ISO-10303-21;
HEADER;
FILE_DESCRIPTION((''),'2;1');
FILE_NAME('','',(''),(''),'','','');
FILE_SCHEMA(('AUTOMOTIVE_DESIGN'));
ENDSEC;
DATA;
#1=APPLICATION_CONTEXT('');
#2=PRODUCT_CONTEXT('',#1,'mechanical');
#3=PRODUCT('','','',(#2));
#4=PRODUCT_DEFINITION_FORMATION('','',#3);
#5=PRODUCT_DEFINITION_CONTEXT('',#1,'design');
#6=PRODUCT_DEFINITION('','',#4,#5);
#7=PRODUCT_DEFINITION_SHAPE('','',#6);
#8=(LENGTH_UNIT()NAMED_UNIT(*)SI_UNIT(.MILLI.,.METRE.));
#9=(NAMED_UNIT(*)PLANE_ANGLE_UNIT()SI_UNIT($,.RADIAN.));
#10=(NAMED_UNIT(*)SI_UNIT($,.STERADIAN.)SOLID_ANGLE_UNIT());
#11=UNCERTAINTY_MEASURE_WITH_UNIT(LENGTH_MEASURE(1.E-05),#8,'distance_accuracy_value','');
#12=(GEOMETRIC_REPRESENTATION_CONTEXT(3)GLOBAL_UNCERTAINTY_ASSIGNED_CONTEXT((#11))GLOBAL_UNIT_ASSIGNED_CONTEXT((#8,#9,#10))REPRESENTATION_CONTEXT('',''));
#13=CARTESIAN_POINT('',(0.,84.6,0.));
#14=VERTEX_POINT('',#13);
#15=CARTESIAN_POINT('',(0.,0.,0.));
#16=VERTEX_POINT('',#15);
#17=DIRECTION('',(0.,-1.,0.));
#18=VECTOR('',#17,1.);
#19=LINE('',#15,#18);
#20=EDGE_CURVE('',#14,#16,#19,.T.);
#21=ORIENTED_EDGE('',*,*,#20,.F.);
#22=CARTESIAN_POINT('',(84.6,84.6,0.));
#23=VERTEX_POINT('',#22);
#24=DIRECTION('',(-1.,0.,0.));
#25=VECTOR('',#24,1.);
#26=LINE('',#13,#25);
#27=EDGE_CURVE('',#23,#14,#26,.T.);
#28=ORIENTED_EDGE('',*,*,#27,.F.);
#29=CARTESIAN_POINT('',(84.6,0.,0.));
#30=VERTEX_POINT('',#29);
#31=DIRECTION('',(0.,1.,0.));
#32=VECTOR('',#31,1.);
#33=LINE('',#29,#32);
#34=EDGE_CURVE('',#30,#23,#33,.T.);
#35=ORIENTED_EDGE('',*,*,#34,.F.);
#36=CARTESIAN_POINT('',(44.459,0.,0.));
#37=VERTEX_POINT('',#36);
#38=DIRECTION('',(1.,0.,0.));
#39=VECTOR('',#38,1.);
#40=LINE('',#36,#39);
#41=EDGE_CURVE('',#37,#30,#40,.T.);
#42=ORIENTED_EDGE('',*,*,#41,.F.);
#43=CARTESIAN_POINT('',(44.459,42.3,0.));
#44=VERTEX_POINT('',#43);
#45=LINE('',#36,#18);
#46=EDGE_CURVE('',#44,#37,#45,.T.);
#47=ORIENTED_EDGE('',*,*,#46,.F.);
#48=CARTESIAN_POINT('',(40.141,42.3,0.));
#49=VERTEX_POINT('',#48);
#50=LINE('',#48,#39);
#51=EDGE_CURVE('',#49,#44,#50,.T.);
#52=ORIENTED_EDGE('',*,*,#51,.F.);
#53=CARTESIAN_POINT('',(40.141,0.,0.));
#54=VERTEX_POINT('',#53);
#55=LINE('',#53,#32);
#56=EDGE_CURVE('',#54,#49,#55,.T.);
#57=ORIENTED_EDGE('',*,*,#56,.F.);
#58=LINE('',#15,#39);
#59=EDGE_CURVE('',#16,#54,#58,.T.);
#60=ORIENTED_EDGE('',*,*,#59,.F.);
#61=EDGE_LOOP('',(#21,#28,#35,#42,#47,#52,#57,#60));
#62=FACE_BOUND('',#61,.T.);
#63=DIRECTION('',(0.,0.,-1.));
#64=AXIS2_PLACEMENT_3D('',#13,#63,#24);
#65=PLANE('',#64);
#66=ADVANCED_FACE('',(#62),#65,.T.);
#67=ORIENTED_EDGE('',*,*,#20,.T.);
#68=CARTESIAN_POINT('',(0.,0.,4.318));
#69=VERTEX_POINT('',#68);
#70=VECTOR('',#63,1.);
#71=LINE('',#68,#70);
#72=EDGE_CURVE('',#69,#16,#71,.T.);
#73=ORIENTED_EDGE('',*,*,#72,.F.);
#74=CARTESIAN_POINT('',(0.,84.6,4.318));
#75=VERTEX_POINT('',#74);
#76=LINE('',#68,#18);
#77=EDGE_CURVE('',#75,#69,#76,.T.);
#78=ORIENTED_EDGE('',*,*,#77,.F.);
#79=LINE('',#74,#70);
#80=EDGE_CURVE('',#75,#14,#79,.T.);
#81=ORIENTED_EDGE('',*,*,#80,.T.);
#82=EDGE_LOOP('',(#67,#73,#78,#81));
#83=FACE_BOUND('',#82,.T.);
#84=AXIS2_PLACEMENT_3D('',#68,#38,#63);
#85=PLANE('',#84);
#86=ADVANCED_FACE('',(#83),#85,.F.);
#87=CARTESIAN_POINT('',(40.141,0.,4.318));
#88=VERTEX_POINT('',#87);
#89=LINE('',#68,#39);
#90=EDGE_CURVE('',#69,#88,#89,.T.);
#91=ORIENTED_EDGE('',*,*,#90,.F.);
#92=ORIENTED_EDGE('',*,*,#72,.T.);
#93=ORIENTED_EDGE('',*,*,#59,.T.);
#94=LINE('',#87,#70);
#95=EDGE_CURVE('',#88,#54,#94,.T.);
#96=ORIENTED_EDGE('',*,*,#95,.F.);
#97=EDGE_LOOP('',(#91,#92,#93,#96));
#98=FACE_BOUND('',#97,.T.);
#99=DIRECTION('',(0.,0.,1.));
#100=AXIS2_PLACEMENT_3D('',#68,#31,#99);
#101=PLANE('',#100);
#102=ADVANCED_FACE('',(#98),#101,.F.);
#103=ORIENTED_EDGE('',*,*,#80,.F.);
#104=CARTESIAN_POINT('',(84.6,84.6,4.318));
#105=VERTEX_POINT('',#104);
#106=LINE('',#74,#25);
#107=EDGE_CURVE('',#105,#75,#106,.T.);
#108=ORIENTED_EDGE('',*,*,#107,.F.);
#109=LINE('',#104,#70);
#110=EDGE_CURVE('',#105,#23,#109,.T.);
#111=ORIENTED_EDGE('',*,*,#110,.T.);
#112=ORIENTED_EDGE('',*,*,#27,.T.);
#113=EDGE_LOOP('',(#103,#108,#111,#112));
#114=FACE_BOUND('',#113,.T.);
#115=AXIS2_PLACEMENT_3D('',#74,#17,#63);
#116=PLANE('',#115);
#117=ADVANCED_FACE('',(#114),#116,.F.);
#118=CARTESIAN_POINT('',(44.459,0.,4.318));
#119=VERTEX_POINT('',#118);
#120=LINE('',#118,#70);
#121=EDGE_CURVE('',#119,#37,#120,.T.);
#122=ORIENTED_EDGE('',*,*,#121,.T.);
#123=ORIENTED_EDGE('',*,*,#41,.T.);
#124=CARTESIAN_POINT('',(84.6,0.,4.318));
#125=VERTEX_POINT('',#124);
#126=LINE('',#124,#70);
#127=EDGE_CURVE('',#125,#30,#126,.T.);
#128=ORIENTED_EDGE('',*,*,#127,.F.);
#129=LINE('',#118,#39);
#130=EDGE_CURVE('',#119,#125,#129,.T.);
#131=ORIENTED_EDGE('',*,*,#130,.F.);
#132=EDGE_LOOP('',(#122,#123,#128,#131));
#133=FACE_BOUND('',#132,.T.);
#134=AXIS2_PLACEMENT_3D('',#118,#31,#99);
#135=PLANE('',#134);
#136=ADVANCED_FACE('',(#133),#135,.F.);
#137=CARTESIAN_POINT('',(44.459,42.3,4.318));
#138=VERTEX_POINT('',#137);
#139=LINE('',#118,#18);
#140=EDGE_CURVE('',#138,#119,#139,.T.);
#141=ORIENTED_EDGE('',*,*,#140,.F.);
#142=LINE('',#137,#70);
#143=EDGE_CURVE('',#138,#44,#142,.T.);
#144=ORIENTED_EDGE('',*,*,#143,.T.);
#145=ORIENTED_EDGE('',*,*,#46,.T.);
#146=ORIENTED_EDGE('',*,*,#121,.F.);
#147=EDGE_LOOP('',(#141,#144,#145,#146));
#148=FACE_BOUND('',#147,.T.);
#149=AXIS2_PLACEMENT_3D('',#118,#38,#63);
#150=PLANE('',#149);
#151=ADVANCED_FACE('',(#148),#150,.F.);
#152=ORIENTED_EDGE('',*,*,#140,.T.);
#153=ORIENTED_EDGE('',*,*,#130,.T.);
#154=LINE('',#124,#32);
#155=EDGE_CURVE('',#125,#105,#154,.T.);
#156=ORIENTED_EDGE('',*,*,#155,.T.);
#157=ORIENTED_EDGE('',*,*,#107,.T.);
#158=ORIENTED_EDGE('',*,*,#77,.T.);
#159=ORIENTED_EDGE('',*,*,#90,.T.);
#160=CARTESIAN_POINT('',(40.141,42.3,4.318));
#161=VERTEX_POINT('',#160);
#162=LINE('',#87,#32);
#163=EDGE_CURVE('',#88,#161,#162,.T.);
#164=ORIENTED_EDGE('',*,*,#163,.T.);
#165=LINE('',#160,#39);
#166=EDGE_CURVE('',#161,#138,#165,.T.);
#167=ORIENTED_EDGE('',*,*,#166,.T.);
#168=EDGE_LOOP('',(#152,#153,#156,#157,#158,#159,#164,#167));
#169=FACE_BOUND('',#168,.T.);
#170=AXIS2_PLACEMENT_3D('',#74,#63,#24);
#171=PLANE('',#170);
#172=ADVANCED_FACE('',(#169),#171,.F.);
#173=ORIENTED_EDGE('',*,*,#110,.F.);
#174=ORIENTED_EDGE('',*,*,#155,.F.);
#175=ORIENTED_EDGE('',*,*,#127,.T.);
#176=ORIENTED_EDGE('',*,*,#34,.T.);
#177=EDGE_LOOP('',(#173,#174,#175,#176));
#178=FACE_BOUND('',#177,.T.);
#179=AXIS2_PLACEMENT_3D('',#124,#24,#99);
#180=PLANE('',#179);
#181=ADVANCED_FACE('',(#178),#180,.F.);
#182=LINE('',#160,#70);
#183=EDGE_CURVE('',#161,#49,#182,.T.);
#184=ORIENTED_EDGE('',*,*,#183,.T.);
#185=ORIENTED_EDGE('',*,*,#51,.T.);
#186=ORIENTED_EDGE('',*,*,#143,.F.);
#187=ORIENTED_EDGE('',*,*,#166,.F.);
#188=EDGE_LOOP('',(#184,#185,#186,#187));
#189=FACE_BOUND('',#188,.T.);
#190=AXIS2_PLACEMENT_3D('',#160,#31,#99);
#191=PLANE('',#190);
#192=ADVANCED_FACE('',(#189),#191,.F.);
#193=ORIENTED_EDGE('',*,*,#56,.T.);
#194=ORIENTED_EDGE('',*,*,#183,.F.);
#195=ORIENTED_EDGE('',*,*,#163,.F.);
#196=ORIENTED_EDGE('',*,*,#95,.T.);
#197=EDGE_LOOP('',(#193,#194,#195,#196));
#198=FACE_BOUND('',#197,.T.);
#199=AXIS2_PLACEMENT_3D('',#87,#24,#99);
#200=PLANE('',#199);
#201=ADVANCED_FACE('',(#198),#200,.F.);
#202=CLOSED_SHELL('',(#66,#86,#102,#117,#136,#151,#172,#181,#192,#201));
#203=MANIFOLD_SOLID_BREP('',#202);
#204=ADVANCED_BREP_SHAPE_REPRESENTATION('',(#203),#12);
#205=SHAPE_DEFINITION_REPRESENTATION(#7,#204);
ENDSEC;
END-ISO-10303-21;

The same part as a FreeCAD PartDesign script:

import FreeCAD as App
import Part
import Sketcher


def add_polygon(sketch, points):
    """Adds a closed chain of lines whose ends are joined by coincident constraints."""
    first, n = sketch.GeometryCount, len(points)
    for a, b in zip(points, points[1:] + points[:1]):
        sketch.addGeometry(Part.LineSegment(App.Vector(*a, 0), App.Vector(*b, 0)), False)
    for i in range(n):
        sketch.addConstraint(Sketcher.Constraint("Coincident", first + i, 2, first + (i + 1) % n, 1))

doc = App.newDocument("Part")
body = doc.addObject("PartDesign::Body", "Body")

# Sketch on XY plane
sketch1 = body.newObject("Sketcher::SketchObject", "Sketch")
sketch1.AttachmentSupport = (doc.getObject("XY_Plane"), [""])
sketch1.MapMode = "FlatFace"
add_polygon(sketch1, [(0, 0), (40.1, 0), (40.1, 42.3), (44.5, 42.3), (44.5, 0), (84.6, 0), (84.6, 84.6), (0, 84.6)])  # lines 0-7
sketch1.addConstraint(Sketcher.Constraint("Horizontal", 0))
sketch1.addConstraint(Sketcher.Constraint("Vertical", 1))
sketch1.addConstraint(Sketcher.Constraint("Horizontal", 2))
sketch1.addConstraint(Sketcher.Constraint("Vertical", 3))
sketch1.addConstraint(Sketcher.Constraint("Horizontal", 4))
sketch1.addConstraint(Sketcher.Constraint("Vertical", 5))
sketch1.addConstraint(Sketcher.Constraint("Horizontal", 6))
sketch1.addConstraint(Sketcher.Constraint("Vertical", 7))
sketch1.addConstraint(Sketcher.Constraint("Coincident", 7, 2, -1, 1))
sketch1.addConstraint(Sketcher.Constraint("PointOnObject", 3, 2, -1))
sketch1.addConstraint(Sketcher.Constraint("Equal", 0, 4))
sketch1.addConstraint(Sketcher.Constraint("Equal", 6, 5))
sketch1.addConstraint(Sketcher.Constraint("DistanceX", 6, 2, 6, 1, 84.6))
sketch1.addConstraint(Sketcher.Constraint("DistanceY", 1, 1, 1, 2, 42.3))
sketch1.addConstraint(Sketcher.Constraint("DistanceX", 0, 1, 0, 2, 40.141))
pad1 = body.newObject("PartDesign::Pad", "Pad")
pad1.Profile = sketch1
pad1.Length = 4.318

doc.recompute()
